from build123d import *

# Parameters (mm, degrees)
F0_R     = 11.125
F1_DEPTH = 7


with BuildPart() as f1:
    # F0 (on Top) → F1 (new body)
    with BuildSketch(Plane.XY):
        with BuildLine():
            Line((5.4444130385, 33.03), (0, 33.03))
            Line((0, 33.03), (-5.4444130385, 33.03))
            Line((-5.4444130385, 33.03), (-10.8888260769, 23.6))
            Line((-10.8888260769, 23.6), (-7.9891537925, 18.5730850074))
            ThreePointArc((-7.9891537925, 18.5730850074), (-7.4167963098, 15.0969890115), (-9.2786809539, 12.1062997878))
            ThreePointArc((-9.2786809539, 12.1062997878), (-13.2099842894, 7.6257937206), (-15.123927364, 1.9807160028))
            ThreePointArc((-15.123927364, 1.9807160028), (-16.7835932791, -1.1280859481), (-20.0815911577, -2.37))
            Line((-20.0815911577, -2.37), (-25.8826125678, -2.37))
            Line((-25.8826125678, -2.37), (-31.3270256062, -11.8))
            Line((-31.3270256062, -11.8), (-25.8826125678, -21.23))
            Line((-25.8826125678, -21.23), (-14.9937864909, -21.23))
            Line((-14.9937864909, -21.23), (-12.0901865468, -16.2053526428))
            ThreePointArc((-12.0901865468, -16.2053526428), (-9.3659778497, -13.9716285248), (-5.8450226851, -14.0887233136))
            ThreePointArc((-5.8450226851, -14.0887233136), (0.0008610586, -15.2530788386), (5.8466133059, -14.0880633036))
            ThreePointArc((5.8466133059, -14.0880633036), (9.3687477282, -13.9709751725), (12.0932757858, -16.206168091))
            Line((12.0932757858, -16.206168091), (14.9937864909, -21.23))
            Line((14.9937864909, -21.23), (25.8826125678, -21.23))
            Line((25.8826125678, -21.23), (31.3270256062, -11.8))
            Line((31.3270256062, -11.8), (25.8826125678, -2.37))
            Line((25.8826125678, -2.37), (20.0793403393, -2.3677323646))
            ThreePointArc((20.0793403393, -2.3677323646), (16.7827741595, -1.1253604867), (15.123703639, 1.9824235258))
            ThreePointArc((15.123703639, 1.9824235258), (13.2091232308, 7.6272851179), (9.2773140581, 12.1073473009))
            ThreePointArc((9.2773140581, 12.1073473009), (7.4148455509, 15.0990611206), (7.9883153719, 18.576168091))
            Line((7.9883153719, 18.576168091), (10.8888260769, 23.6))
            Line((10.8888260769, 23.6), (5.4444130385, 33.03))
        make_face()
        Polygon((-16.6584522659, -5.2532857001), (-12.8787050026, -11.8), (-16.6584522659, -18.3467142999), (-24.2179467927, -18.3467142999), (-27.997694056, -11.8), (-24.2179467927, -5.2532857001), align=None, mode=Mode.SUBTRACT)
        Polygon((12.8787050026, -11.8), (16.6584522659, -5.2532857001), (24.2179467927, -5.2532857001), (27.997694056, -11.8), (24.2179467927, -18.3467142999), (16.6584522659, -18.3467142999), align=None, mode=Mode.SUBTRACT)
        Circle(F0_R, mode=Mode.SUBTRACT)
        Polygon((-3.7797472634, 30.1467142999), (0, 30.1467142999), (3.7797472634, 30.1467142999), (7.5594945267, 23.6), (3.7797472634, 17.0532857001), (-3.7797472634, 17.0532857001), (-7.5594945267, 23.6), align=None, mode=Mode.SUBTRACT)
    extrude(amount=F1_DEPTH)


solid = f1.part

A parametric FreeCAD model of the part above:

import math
import FreeCAD as App
import Part
import Sketcher
from FreeCAD import Vector
Q = App.Units.Quantity

doc = App.newDocument("Part")
params = doc.addObject("Spreadsheet::Sheet", "Params")
for row, (alias, value) in enumerate([
    ("sketch1_radius", "5 mm"),
    ("sketch1_diameter", "22.25 mm"),
    ("pad1_length", "7 mm"),
], start=1):
    params.set(f"A{row}", alias)
    params.set(f"B{row}", "=" + value)
    params.setAlias(f"B{row}", alias)

body = doc.addObject("PartDesign::Body", "Body")

sketch1 = body.newObject("Sketcher::SketchObject", "Sketch")
sketch1.AttachmentSupport = (doc.getObject("XY_Plane"), [""])
sketch1.MapMode = "FlatFace"
sketch1.addGeometry([
    Part.LineSegment(Vector(5, 33, 0), Vector(-5, 33, 0)),
    Part.LineSegment(Vector(-5, 33, 0), Vector(-11, 24, 0)),
    Part.LineSegment(Vector(-11, 24, 0), Vector(-8, 19, 0)),
    Part.ArcOfCircle(Part.Circle(Vector(-12, 16, 0), Vector(0, 0, 1), 5), math.radians(-53), math.radians(30)),
    Part.ArcOfCircle(Part.Circle(Vector(0, 0, 0), Vector(0, 0, 1), 15), math.radians(127), math.radians(173)),
    Part.ArcOfCircle(Part.Circle(Vector(-20, 3, 0), Vector(0, 0, 1), 5), math.radians(-90), math.radians(-7)),
    Part.LineSegment(Vector(-20, -2, 0), Vector(-26, -2, 0)),
    Part.LineSegment(Vector(-26, -2, 0), Vector(-31, -12, 0)),
    Part.LineSegment(Vector(-31, -12, 0), Vector(-26, -21, 0)),
    Part.LineSegment(Vector(-26, -21, 0), Vector(-15, -21, 0)),
    Part.LineSegment(Vector(-15, -21, 0), Vector(-12, -16, 0)),
    Part.ArcOfCircle(Part.Circle(Vector(-8, -19, 0), Vector(0, 0, 1), 5), math.radians(67), math.radians(150)),
    Part.ArcOfCircle(Part.Circle(Vector(0, 0, 0), Vector(0, 0, 1), 15), math.radians(-113), math.radians(-67)),
    Part.ArcOfCircle(Part.Circle(Vector(8, -19, 0), Vector(0, 0, 1), 5), math.radians(30), math.radians(113)),
    Part.LineSegment(Vector(12, -16, 0), Vector(15, -21, 0)),
    Part.LineSegment(Vector(15, -21, 0), Vector(26, -21, 0)),
    Part.LineSegment(Vector(26, -21, 0), Vector(31, -12, 0)),
    Part.LineSegment(Vector(31, -12, 0), Vector(26, -2, 0)),
    Part.LineSegment(Vector(26, -2, 0), Vector(20, -2, 0)),
    Part.ArcOfCircle(Part.Circle(Vector(20, 3, 0), Vector(0, 0, 1), 5), math.radians(-173), math.radians(-90)),
    Part.ArcOfCircle(Part.Circle(Vector(0, 0, 0), Vector(0, 0, 1), 15), math.radians(7), math.radians(53)),
    Part.ArcOfCircle(Part.Circle(Vector(12, 16, 0), Vector(0, 0, 1), 5), math.radians(150), math.radians(233)),
    Part.LineSegment(Vector(8, 19, 0), Vector(11, 24, 0)),
    Part.LineSegment(Vector(11, 24, 0), Vector(5, 33, 0)),
    Part.LineSegment(Vector(-24, -5, 0), Vector(-17, -5, 0)),
    Part.LineSegment(Vector(-17, -5, 0), Vector(-13, -12, 0)),
    Part.LineSegment(Vector(-13, -12, 0), Vector(-17, -18, 0)),
    Part.LineSegment(Vector(-17, -18, 0), Vector(-24, -18, 0)),
    Part.LineSegment(Vector(-24, -18, 0), Vector(-28, -12, 0)),
    Part.LineSegment(Vector(-28, -12, 0), Vector(-24, -5, 0)),
    Part.Circle(Vector(0, 0, 0), Vector(0, 0, 1), 11),
    Part.LineSegment(Vector(17, -18, 0), Vector(13, -12, 0)),
    Part.LineSegment(Vector(13, -12, 0), Vector(17, -5, 0)),
    Part.LineSegment(Vector(17, -5, 0), Vector(24, -5, 0)),
    Part.LineSegment(Vector(24, -5, 0), Vector(28, -12, 0)),
    Part.LineSegment(Vector(28, -12, 0), Vector(24, -18, 0)),
    Part.LineSegment(Vector(24, -18, 0), Vector(17, -18, 0)),
    Part.LineSegment(Vector(-8, 24, 0), Vector(-4, 30, 0)),
    Part.LineSegment(Vector(-4, 30, 0), Vector(4, 30, 0)),
    Part.LineSegment(Vector(4, 30, 0), Vector(8, 24, 0)),
    Part.LineSegment(Vector(8, 24, 0), Vector(4, 17, 0)),
    Part.LineSegment(Vector(4, 17, 0), Vector(-4, 17, 0)),
    Part.LineSegment(Vector(-4, 17, 0), Vector(-8, 24, 0)),
], False)
sketch1.addConstraint([
    Sketcher.Constraint("Coincident", 0, 2, 1, 1),
    Sketcher.Constraint("Coincident", 1, 2, 2, 1),
    Sketcher.Constraint("Tangent", 2, 2, 3, 2),
    Sketcher.Constraint("Tangent", 3, 1, 4, 1),
    Sketcher.Constraint("Tangent", 4, 2, 5, 2),
    Sketcher.Constraint("Tangent", 5, 1, 6, 1),
    Sketcher.Constraint("Coincident", 6, 2, 7, 1),
    Sketcher.Constraint("Coincident", 7, 2, 8, 1),
    Sketcher.Constraint("Coincident", 8, 2, 9, 1),
    Sketcher.Constraint("Coincident", 9, 2, 10, 1),
    Sketcher.Constraint("Tangent", 10, 2, 11, 2),
    Sketcher.Constraint("Tangent", 11, 1, 12, 1),
    Sketcher.Constraint("Tangent", 12, 2, 13, 2),
    Sketcher.Constraint("Tangent", 13, 1, 14, 1),
    Sketcher.Constraint("Coincident", 14, 2, 15, 1),
    Sketcher.Constraint("Coincident", 15, 2, 16, 1),
    Sketcher.Constraint("Coincident", 16, 2, 17, 1),
    Sketcher.Constraint("Coincident", 17, 2, 18, 1),
    Sketcher.Constraint("Tangent", 18, 2, 19, 2),
    Sketcher.Constraint("Tangent", 19, 1, 20, 1),
    Sketcher.Constraint("Tangent", 20, 2, 21, 2),
    Sketcher.Constraint("Tangent", 21, 1, 22, 1),
    Sketcher.Constraint("Coincident", 22, 2, 23, 1),
    Sketcher.Constraint("Coincident", 23, 2, 0, 1),
    Sketcher.Constraint("Coincident", 24, 2, 25, 1),
    Sketcher.Constraint("Coincident", 25, 2, 26, 1),
    Sketcher.Constraint("Coincident", 26, 2, 27, 1),
    Sketcher.Constraint("Coincident", 27, 2, 28, 1),
    Sketcher.Constraint("Coincident", 28, 2, 29, 1),
    Sketcher.Constraint("Coincident", 29, 2, 24, 1),
    Sketcher.Constraint("Coincident", 31, 2, 32, 1),
    Sketcher.Constraint("Coincident", 32, 2, 33, 1),
    Sketcher.Constraint("Coincident", 33, 2, 34, 1),
    Sketcher.Constraint("Coincident", 34, 2, 35, 1),
    Sketcher.Constraint("Coincident", 35, 2, 36, 1),
    Sketcher.Constraint("Coincident", 36, 2, 31, 1),
    Sketcher.Constraint("Coincident", 37, 2, 38, 1),
    Sketcher.Constraint("Coincident", 38, 2, 39, 1),
    Sketcher.Constraint("Coincident", 39, 2, 40, 1),
    Sketcher.Constraint("Coincident", 40, 2, 41, 1),
    Sketcher.Constraint("Coincident", 41, 2, 42, 1),
    Sketcher.Constraint("Coincident", 42, 2, 37, 1),
    Sketcher.Constraint("Horizontal", 0),
    Sketcher.Constraint("Horizontal", 6),
    Sketcher.Constraint("Horizontal", 9),
    Sketcher.Constraint("Horizontal", 15),
    Sketcher.Constraint("Horizontal", 24),
    Sketcher.Constraint("Horizontal", 27),
    Sketcher.Constraint("Horizontal", 33),
    Sketcher.Constraint("Horizontal", 36),
    Sketcher.Constraint("Horizontal", 38),
    Sketcher.Constraint("Horizontal", 41),
    Sketcher.Constraint("Coincident", 4, 3, -1, 1),
    Sketcher.Constraint("Coincident", 12, 3, -1, 1),
    Sketcher.Constraint("Coincident", 20, 3, -1, 1),
    Sketcher.Constraint("Coincident", 30, 3, -1, 1),
    Sketcher.Constraint("Equal", 3, 5),
    Sketcher.Constraint("Equal", 5, 11),
    Sketcher.Constraint("Equal", 4, 12),
    Sketcher.Constraint("Equal", 11, 13),
    Sketcher.Constraint("Equal", 13, 19),
    Sketcher.Constraint("Equal", 12, 20),
    Sketcher.Constraint("Equal", 19, 21),
    Sketcher.Constraint("Symmetric", 9, 2, 14, 2, -2),
    Sketcher.Constraint("Symmetric", 7, 2, 16, 2, -2),
    Sketcher.Constraint("Symmetric", 6, 2, 17, 2, -2),
    Sketcher.Constraint("Symmetric", 1, 2, 22, 2, -2),
    Sketcher.Constraint("Symmetric", 25, 2, 31, 2, -2),
    Sketcher.Constraint("Symmetric", 24, 2, 32, 2, -2),
    Sketcher.Constraint("Symmetric", 28, 2, 34, 2, -2),
    Sketcher.Constraint("Symmetric", 27, 2, 35, 2, -2),
    Sketcher.Constraint("Symmetric", 39, 2, 42, 2, -2),
    Sketcher.Constraint("Parallel", 1, 7),
    Sketcher.Constraint("Parallel", 8, 14),
    Sketcher.Constraint("Parallel", 7, 16),
    Sketcher.Constraint("Parallel", 14, 17),
    Sketcher.Constraint("Parallel", 16, 22),
    Sketcher.Constraint("Parallel", 17, 23),
    Sketcher.Constraint("Parallel", 23, 25),
    Sketcher.Constraint("Parallel", 22, 26),
    Sketcher.Constraint("Parallel", 25, 28),
    Sketcher.Constraint("Parallel", 26, 29),
    Sketcher.Constraint("Parallel", 28, 31),
    Sketcher.Constraint("Parallel", 31, 34),
    Sketcher.Constraint("Parallel", 35, 37),
    Sketcher.Constraint("Parallel", 34, 39),
    Sketcher.Constraint("Parallel", 37, 40),
    Sketcher.Constraint("Parallel", 39, 42),
    Sketcher.Constraint("Horizontal", 16, 2, 25, 2),
    Sketcher.Constraint("Horizontal", 25, 2, 28, 2),
    Sketcher.Constraint("Horizontal", 22, 2, 39, 2),
    Sketcher.Constraint("Vertical", 6, 2, 8, 2),
    Sketcher.Constraint("Vertical", 24, 2, 26, 2),
    Sketcher.Constraint("Vertical", 38, 2, 40, 2),
    Sketcher.Constraint("Equal", 0, 9),
    Sketcher.Constraint("Equal", 36, 38),
    Sketcher.Constraint("Equal", 1, 7),
    Sketcher.Constraint("Equal", 2, 10),
    Sketcher.Constraint("Equal", 10, 18),
    Sketcher.Constraint("Equal", 14, 22),
    Sketcher.Constraint("Equal", 35, 37),
    Sketcher.Constraint("Radius", 3, 5.0),
    Sketcher.Constraint("Diameter", 30, 22.25),
    Sketcher.Constraint("Angle", 1, Q("-120 deg")),
    Sketcher.Constraint("DistanceY", -1, 1, 1, 2, 23.6),
    Sketcher.Constraint("DistanceY", 7, 2, -1, 1, 11.8),
    Sketcher.Constraint("DistanceY", -1, 1, 5, 3, 2.63),
    Sketcher.Constraint("Radius", 4, 15.253079),
    Sketcher.Constraint("DistanceX", 12, 2, 15, 2, 20.035999),
    Sketcher.Constraint("DistanceY", 24, 2, 4, 2, 7.234002),
    Sketcher.Constraint("DistanceY", -1, 1, 3, 1, 12.1063),
    Sketcher.Constraint("DistanceX", 24, 1, 24, 2, 7.559495),
    Sketcher.Constraint("DistanceX", 5, 1, 24, 2, 3.423139),
])
sketch1.setExpression("Constraints[101]", "Params.sketch1_radius")
sketch1.setExpression("Constraints[102]", "Params.sketch1_diameter")
pad1 = body.newObject("PartDesign::Pad", "Pad")
pad1.Profile = sketch1
pad1.setExpression("Length", "Params.pad1_length")

doc.recompute()
